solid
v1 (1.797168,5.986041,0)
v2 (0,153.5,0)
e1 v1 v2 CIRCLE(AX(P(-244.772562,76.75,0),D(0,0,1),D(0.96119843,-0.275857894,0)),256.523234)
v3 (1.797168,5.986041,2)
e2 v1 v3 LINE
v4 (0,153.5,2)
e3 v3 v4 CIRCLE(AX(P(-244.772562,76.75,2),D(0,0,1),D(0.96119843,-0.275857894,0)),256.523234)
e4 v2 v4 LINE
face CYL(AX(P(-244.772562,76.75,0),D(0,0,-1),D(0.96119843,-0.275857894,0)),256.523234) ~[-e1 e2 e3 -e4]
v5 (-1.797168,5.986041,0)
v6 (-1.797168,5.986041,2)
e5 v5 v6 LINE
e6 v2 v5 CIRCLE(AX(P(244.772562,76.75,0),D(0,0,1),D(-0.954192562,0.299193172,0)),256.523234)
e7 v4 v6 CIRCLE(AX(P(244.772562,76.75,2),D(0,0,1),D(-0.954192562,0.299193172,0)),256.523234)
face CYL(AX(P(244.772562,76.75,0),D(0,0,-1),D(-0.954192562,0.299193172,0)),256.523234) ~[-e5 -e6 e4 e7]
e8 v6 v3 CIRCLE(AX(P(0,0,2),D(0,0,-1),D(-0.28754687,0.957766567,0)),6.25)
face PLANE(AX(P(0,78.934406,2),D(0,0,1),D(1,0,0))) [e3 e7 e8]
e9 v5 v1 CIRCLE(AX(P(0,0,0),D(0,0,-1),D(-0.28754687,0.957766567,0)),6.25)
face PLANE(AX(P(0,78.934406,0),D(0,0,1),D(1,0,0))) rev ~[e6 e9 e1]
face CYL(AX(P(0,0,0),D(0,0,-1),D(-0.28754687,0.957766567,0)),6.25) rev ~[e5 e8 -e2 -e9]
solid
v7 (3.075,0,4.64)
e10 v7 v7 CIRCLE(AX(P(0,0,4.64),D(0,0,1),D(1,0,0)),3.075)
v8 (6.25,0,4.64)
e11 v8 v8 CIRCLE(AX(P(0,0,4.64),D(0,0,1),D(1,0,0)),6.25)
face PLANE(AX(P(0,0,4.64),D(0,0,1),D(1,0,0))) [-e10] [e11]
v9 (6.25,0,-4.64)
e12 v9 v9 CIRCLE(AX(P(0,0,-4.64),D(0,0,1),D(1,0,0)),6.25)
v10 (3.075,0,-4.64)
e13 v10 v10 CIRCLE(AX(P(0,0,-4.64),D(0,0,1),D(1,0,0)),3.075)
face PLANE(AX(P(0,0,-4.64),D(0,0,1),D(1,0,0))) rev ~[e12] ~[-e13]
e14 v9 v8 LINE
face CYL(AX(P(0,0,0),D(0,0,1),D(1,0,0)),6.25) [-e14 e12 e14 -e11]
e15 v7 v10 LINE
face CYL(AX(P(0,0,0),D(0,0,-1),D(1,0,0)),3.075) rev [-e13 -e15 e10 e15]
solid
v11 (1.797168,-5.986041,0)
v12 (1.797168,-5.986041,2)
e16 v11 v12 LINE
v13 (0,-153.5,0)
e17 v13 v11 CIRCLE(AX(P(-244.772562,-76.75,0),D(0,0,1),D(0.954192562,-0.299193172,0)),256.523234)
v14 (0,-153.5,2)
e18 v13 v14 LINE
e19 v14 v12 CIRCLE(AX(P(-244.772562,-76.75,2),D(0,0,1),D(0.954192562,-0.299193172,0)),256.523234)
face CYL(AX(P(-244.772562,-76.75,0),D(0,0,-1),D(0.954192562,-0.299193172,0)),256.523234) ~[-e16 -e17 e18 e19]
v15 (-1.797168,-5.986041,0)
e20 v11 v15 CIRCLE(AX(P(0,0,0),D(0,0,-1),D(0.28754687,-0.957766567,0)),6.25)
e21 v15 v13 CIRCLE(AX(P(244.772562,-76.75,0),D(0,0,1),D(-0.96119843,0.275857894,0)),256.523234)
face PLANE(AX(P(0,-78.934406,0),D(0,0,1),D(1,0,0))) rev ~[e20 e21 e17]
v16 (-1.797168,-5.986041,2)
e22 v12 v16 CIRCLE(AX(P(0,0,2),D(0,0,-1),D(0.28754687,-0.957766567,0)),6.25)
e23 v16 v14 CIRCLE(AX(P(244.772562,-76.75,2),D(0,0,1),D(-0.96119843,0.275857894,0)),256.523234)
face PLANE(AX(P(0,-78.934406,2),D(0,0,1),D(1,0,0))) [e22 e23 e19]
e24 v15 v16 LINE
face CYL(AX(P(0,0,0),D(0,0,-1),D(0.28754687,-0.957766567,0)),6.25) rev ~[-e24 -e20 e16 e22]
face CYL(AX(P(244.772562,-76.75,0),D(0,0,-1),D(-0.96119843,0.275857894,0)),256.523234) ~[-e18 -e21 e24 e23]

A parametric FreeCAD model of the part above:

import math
import FreeCAD as App
import Part
import Sketcher
from FreeCAD import Vector

doc = App.newDocument("Part")
body = doc.addObject("PartDesign::Body", "Body")

# Sketch on XY plane
sketch1 = body.newObject("Sketcher::SketchObject", "Sketch")
sketch1.AttachmentSupport = (doc.getObject("XY_Plane"), [""])
sketch1.MapMode = "FlatFace"
sketch1.addGeometry(Part.ArcOfCircle(Part.Circle(Vector(0, 0, 0), Vector(0, 0, 1), 6.2), math.radians(73), math.radians(107)), False)
sketch1.addGeometry(Part.ArcOfCircle(Part.Circle(Vector(-244.8, 76.8, 0), Vector(0, 0, 1), 256.5), math.radians(-16), math.radians(17)), False)
sketch1.addGeometry(Part.ArcOfCircle(Part.Circle(Vector(244.8, 76.8, 0), Vector(0, 0, 1), 256.5), math.radians(163), math.radians(196)), False)
sketch1.addConstraint(Sketcher.Constraint("Coincident", 0, 1, 1, 1))
sketch1.addConstraint(Sketcher.Constraint("Coincident", 1, 2, 2, 1))
sketch1.addConstraint(Sketcher.Constraint("Coincident", 2, 2, 0, 2))
sketch1.addConstraint(Sketcher.Constraint("Coincident", 0, 3, -1, 1))
sketch1.addConstraint(Sketcher.Constraint("Equal", 1, 2))
sketch1.addConstraint(Sketcher.Constraint("Symmetric", 1, 3, 2, 3, -2))
sketch1.addConstraint(Sketcher.Constraint("Radius", 0, 6.25))
sketch1.addConstraint(Sketcher.Constraint("DistanceY", -1, 1, 1, 2, 153.5))
sketch1.addConstraint(Sketcher.Constraint("DistanceY", -1, 1, 1, 3, 76.75))
sketch1.addConstraint(Sketcher.Constraint("Radius", 1, 256.523234))
pad1 = body.newObject("PartDesign::Pad", "Pad")
pad1.Profile = sketch1
pad1.Length = 2
body2 = doc.addObject("PartDesign::Body", "Body001")

# Sketch on XY plane
sketch2 = body2.newObject("Sketcher::SketchObject", "Sketch001")
sketch2.AttachmentSupport = (doc.getObject("XY_Plane001"), [""])
sketch2.MapMode = "FlatFace"
sketch2.addGeometry(Part.ArcOfCircle(Part.Circle(Vector(-244.8, -76.8, 0), Vector(0, 0, 1), 256.5), math.radians(-17), math.radians(16)), False)
sketch2.addGeometry(Part.ArcOfCircle(Part.Circle(Vector(0, 0, 0), Vector(0, 0, 1), 6.2), math.radians(-107), math.radians(-73)), False)
sketch2.addGeometry(Part.ArcOfCircle(Part.Circle(Vector(244.8, -76.8, 0), Vector(0, 0, 1), 256.5), math.radians(164), math.radians(197)), False)
sketch2.addConstraint(Sketcher.Constraint("Coincident", 0, 2, 1, 2))
sketch2.addConstraint(Sketcher.Constraint("Coincident", 1, 1, 2, 1))
sketch2.addConstraint(Sketcher.Constraint("Coincident", 2, 2, 0, 1))
sketch2.addConstraint(Sketcher.Constraint("Coincident", 1, 3, -1, 1))
sketch2.addConstraint(Sketcher.Constraint("Equal", 0, 2))
sketch2.addConstraint(Sketcher.Constraint("Symmetric", 0, 3, 2, 3, -2))
sketch2.addConstraint(Sketcher.Constraint("Radius", 1, 6.25))
sketch2.addConstraint(Sketcher.Constraint("DistanceY", 2, 2, -1, 1, 153.5))
sketch2.addConstraint(Sketcher.Constraint("DistanceY", 0, 3, -1, 1, 76.75))
sketch2.addConstraint(Sketcher.Constraint("Radius", 0, 256.523234))
pad2 = body2.newObject("PartDesign::Pad", "Pad001")
pad2.Profile = sketch2
pad2.Length = 2
body3 = doc.addObject("PartDesign::Body", "Body002")

# Sketch on XY plane
sketch3 = body3.newObject("Sketcher::SketchObject", "Sketch002")
sketch3.AttachmentSupport = (doc.getObject("XY_Plane002"), [""])
sketch3.MapMode = "FlatFace"
sketch3.addGeometry(Part.Circle(Vector(0, 0, 0), Vector(0, 0, 1), 6.2), False)
sketch3.addGeometry(Part.Circle(Vector(0, 0, 0), Vector(0, 0, 1), 3.1), False)
sketch3.addConstraint(Sketcher.Constraint("Coincident", 0, 3, -1, 1))
sketch3.addConstraint(Sketcher.Constraint("Coincident", 1, 3, -1, 1))
sketch3.addConstraint(Sketcher.Constraint("Diameter", 0, 12.5))
sketch3.addConstraint(Sketcher.Constraint("Diameter", 1, 6.15))
pad3 = body3.newObject("PartDesign::Pad", "Pad002")
pad3.Profile = sketch3
pad3.Length = 9.28
pad3.Midplane = True

doc.recompute()
